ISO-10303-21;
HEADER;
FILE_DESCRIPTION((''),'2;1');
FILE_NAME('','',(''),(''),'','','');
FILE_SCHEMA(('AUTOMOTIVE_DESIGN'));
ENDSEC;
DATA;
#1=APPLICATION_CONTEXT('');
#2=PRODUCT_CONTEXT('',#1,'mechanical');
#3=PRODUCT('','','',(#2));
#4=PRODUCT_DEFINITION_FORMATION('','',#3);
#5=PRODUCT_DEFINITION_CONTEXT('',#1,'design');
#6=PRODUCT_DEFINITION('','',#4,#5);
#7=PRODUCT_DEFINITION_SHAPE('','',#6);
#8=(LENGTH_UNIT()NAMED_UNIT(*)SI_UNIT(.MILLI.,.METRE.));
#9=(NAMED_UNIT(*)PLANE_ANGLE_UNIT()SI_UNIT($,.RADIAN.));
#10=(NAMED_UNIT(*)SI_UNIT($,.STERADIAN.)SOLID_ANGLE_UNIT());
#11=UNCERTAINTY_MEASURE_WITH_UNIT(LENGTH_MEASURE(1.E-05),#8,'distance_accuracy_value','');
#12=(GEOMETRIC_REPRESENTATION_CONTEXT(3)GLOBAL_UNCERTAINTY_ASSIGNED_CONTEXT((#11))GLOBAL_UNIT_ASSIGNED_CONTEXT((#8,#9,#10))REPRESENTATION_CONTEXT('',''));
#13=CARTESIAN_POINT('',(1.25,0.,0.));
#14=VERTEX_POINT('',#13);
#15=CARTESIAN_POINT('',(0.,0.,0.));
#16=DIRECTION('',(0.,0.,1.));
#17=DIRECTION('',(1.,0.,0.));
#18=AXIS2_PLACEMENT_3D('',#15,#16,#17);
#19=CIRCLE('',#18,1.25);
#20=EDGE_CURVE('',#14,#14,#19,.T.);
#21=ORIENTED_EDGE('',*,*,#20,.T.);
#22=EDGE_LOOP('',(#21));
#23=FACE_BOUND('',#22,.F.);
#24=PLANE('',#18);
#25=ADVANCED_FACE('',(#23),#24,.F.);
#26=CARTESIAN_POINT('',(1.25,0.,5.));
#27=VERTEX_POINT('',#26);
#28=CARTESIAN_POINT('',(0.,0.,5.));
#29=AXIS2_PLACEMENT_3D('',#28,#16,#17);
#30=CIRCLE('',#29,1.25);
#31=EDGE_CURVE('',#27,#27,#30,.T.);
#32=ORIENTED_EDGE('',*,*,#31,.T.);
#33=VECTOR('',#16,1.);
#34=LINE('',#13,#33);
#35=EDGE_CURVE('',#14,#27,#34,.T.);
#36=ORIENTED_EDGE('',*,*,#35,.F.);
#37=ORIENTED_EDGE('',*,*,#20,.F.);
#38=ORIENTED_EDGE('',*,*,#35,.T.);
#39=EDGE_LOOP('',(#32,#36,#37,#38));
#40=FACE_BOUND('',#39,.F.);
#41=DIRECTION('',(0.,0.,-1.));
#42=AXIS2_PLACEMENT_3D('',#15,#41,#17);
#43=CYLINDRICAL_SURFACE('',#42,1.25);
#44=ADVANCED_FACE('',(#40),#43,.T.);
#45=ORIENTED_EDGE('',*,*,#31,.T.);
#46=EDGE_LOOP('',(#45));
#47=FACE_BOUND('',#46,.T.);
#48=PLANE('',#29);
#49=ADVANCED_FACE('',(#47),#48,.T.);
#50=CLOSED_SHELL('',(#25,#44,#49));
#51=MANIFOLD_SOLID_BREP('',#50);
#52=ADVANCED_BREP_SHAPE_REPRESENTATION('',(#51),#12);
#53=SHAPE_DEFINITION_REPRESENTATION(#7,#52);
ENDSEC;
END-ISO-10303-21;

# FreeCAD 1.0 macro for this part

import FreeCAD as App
import Part
import Sketcher
from FreeCAD import Vector

doc = App.newDocument("Part")
body = doc.addObject("PartDesign::Body", "Body")

# Sketch on XY plane
sketch1 = body.newObject("Sketcher::SketchObject", "Sketch")
sketch1.AttachmentSupport = (doc.getObject("XY_Plane"), [""])
sketch1.MapMode = "FlatFace"
sketch1.addGeometry(Part.Circle(Vector(0, 0, 0), Vector(0, 0, 1), 1.2), False)
sketch1.addConstraint(Sketcher.Constraint("Coincident", 0, 3, -1, 1))
sketch1.addConstraint(Sketcher.Constraint("Diameter", 0, 2.5))
pad1 = body.newObject("PartDesign::Pad", "Pad")
pad1.Profile = sketch1
pad1.Length = 5

doc.recompute()
